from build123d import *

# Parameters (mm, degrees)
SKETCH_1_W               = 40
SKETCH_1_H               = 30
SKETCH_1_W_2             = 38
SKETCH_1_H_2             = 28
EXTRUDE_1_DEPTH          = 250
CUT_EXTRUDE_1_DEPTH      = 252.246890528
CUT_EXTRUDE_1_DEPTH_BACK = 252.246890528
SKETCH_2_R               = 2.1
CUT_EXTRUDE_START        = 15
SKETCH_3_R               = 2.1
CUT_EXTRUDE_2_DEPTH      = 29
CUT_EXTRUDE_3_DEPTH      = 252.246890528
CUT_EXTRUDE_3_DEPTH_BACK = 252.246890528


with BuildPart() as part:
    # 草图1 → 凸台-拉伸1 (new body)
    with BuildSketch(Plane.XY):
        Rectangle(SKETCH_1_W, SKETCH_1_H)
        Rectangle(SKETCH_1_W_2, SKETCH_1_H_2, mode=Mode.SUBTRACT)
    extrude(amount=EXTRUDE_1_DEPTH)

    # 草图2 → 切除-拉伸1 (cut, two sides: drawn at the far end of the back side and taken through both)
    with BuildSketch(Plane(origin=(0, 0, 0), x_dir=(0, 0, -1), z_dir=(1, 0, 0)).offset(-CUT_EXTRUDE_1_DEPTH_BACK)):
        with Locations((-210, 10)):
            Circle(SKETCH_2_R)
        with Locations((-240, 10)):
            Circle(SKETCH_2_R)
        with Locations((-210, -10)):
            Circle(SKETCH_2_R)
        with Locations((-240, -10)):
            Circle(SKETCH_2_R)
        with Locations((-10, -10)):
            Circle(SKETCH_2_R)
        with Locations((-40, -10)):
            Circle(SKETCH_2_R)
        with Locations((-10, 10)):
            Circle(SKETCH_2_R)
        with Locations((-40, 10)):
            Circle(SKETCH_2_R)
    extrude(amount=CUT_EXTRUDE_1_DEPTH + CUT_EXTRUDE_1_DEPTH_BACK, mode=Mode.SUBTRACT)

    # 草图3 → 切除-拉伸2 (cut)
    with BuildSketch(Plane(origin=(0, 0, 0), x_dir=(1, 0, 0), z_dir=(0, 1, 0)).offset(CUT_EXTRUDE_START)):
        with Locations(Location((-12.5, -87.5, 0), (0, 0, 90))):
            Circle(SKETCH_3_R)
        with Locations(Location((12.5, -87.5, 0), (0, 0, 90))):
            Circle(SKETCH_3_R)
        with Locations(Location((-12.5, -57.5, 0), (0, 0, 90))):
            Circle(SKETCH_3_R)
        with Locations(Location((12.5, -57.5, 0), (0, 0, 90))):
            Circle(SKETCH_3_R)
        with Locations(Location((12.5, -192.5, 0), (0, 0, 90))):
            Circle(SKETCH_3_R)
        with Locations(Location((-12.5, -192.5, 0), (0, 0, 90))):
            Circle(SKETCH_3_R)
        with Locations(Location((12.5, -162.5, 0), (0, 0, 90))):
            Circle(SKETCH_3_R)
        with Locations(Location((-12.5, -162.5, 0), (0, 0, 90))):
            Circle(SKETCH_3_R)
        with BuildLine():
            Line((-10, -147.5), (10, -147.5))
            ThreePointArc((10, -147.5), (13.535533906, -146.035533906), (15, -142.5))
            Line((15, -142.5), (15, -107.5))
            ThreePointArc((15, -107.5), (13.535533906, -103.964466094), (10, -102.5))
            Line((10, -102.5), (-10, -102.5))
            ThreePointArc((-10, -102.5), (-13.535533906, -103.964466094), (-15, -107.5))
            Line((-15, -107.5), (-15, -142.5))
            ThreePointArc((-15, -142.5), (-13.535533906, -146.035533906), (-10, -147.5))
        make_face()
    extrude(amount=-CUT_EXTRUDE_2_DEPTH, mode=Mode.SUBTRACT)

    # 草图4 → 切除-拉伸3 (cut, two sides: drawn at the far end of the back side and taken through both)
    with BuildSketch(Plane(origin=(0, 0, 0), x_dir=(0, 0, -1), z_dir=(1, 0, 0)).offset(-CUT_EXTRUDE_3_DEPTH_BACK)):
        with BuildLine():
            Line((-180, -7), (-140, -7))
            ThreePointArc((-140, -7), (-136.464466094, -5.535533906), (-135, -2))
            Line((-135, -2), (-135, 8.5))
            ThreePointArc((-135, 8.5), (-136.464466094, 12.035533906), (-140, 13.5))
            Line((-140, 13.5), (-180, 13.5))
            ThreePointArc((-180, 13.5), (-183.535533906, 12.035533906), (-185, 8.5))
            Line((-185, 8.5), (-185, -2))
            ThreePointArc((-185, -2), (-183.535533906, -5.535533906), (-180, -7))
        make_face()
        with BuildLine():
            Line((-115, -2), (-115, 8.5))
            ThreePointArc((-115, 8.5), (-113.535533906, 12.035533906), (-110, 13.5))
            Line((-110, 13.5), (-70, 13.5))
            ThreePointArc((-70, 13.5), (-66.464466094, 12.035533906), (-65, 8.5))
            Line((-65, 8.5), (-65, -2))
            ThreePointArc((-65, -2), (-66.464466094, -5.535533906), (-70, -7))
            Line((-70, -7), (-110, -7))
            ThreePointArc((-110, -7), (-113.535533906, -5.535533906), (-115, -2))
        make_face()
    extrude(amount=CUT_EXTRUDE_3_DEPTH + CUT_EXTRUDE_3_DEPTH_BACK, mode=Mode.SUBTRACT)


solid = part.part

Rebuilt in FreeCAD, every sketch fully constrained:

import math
import FreeCAD as App
import Part
import Sketcher
Q = App.Units.Quantity

doc = App.newDocument("Part")
body = doc.addObject("PartDesign::Body", "Body")

# Sketch on XY plane
sketch1 = body.newObject("Sketcher::SketchObject", "Sketch")
sketch1.AttachmentSupport = (doc.getObject("XY_Plane"), [""])
sketch1.MapMode = "FlatFace"
sketch1.addGeometry(Part.LineSegment(App.Vector(-20, 15, 0), App.Vector(-20, -15, 0)), False)
sketch1.addGeometry(Part.LineSegment(App.Vector(-20, -15, 0), App.Vector(20, -15, 0)), False)
sketch1.addGeometry(Part.LineSegment(App.Vector(20, -15, 0), App.Vector(20, 15, 0)), False)
sketch1.addGeometry(Part.LineSegment(App.Vector(20, 15, 0), App.Vector(-20, 15, 0)), False)
sketch1.addGeometry(Part.LineSegment(App.Vector(19, -14, 0), App.Vector(-19, -14, 0)), False)
sketch1.addGeometry(Part.LineSegment(App.Vector(-19, -14, 0), App.Vector(-19, 14, 0)), False)
sketch1.addGeometry(Part.LineSegment(App.Vector(-19, 14, 0), App.Vector(19, 14, 0)), False)
sketch1.addGeometry(Part.LineSegment(App.Vector(19, 14, 0), App.Vector(19, -14, 0)), False)
sketch1.addConstraint(Sketcher.Constraint("Coincident", 0, 2, 1, 1))
sketch1.addConstraint(Sketcher.Constraint("Coincident", 1, 2, 2, 1))
sketch1.addConstraint(Sketcher.Constraint("Coincident", 2, 2, 3, 1))
sketch1.addConstraint(Sketcher.Constraint("Coincident", 3, 2, 0, 1))
sketch1.addConstraint(Sketcher.Constraint("Coincident", 4, 2, 5, 1))
sketch1.addConstraint(Sketcher.Constraint("Coincident", 5, 2, 6, 1))
sketch1.addConstraint(Sketcher.Constraint("Coincident", 6, 2, 7, 1))
sketch1.addConstraint(Sketcher.Constraint("Coincident", 7, 2, 4, 1))
sketch1.addConstraint(Sketcher.Constraint("Vertical", 0))
sketch1.addConstraint(Sketcher.Constraint("Horizontal", 1))
sketch1.addConstraint(Sketcher.Constraint("Vertical", 2))
sketch1.addConstraint(Sketcher.Constraint("Horizontal", 3))
sketch1.addConstraint(Sketcher.Constraint("Horizontal", 4))
sketch1.addConstraint(Sketcher.Constraint("Vertical", 5))
sketch1.addConstraint(Sketcher.Constraint("Horizontal", 6))
sketch1.addConstraint(Sketcher.Constraint("Vertical", 7))
sketch1.addConstraint(Sketcher.Constraint("Symmetric", 0, 2, 2, 2, -1, 1))
sketch1.addConstraint(Sketcher.Constraint("Symmetric", 4, 2, 6, 2, -1, 1))
sketch1.addConstraint(Sketcher.Constraint("DistanceX", 1, 1, 1, 2, Q("40 mm")))
sketch1.addConstraint(Sketcher.Constraint("DistanceX", 4, 2, 4, 1, Q("38 mm")))
sketch1.addConstraint(Sketcher.Constraint("DistanceY", 0, 2, 0, 1, Q("30 mm")))
sketch1.addConstraint(Sketcher.Constraint("DistanceY", 5, 1, 5, 2, Q("28 mm")))
pad1 = body.newObject("PartDesign::Pad", "Pad")
pad1.Profile = sketch1
pad1.Length = 250

# Sketch on YZ plane
sketch2 = body.newObject("Sketcher::SketchObject", "Sketch001")
sketch2.AttachmentSupport = (doc.getObject("YZ_Plane"), [""])
sketch2.MapMode = "FlatFace"
sketch2.addGeometry(Part.Circle(App.Vector(10, 210, 0), App.Vector(0, 0, 1), 2.1), False)
sketch2.addGeometry(Part.Circle(App.Vector(10, 240, 0), App.Vector(0, 0, 1), 2.1), False)
sketch2.addGeometry(Part.Circle(App.Vector(-10, 210, 0), App.Vector(0, 0, 1), 2.1), False)
sketch2.addGeometry(Part.Circle(App.Vector(-10, 240, 0), App.Vector(0, 0, 1), 2.1), False)
sketch2.addGeometry(Part.Circle(App.Vector(-10, 10, 0), App.Vector(0, 0, 1), 2.1), False)
sketch2.addGeometry(Part.Circle(App.Vector(-10, 40, 0), App.Vector(0, 0, 1), 2.1), False)
sketch2.addGeometry(Part.Circle(App.Vector(10, 10, 0), App.Vector(0, 0, 1), 2.1), False)
sketch2.addGeometry(Part.Circle(App.Vector(10, 40, 0), App.Vector(0, 0, 1), 2.1), False)
sketch2.addConstraint(Sketcher.Constraint("Equal", 0, 1))
sketch2.addConstraint(Sketcher.Constraint("Equal", 1, 2))
sketch2.addConstraint(Sketcher.Constraint("Equal", 2, 3))
sketch2.addConstraint(Sketcher.Constraint("Equal", 3, 4))
sketch2.addConstraint(Sketcher.Constraint("Equal", 4, 5))
sketch2.addConstraint(Sketcher.Constraint("Equal", 5, 6))
sketch2.addConstraint(Sketcher.Constraint("Equal", 6, 7))
sketch2.addConstraint(Sketcher.Constraint("Symmetric", 0, 3, 2, 3, -2))
sketch2.addConstraint(Sketcher.Constraint("Symmetric", 1, 3, 3, 3, -2))
sketch2.addConstraint(Sketcher.Constraint("Symmetric", 4, 3, 6, 3, -2))
sketch2.addConstraint(Sketcher.Constraint("Symmetric", 5, 3, 7, 3, -2))
sketch2.addConstraint(Sketcher.Constraint("Vertical", 0, 3, 1, 3))
sketch2.addConstraint(Sketcher.Constraint("Vertical", 3, 3, 4, 3))
sketch2.addConstraint(Sketcher.Constraint("Vertical", 4, 3, 5, 3))
sketch2.addConstraint(Sketcher.Constraint("Diameter", 0, Q("4.2 mm")))
sketch2.addConstraint(Sketcher.Constraint("DistanceX", -1, 1, 0, 3, Q("10 mm")))
sketch2.addConstraint(Sketcher.Constraint("DistanceY", -1, 1, 0, 3, Q("210 mm")))
sketch2.addConstraint(Sketcher.Constraint("DistanceY", -1, 1, 1, 3, Q("240 mm")))
sketch2.addConstraint(Sketcher.Constraint("DistanceY", -1, 1, 4, 3, Q("10 mm")))
sketch2.addConstraint(Sketcher.Constraint("DistanceY", -1, 1, 5, 3, Q("40 mm")))
pocket1 = body.newObject("PartDesign::Pocket", "Pocket")
pocket1.Profile = sketch2
pocket1.Type = "ThroughAll"
pocket1.Midplane = True

# Sketch on XZ plane
sketch3 = body.newObject("Sketcher::SketchObject", "Sketch002")
sketch3.AttachmentSupport = (doc.getObject("XZ_Plane"), [""])
sketch3.MapMode = "FlatFace"
sketch3.AttachmentOffset = App.Placement(App.Vector(0, 0, -15), App.Rotation())
sketch3.addGeometry(Part.Circle(App.Vector(-12.5, 87.5, 0), App.Vector(0, 0, 1), 2.1), False)
sketch3.addGeometry(Part.Circle(App.Vector(12.5, 87.5, 0), App.Vector(0, 0, 1), 2.1), False)
sketch3.addGeometry(Part.Circle(App.Vector(-12.5, 57.5, 0), App.Vector(0, 0, 1), 2.1), False)
sketch3.addGeometry(Part.Circle(App.Vector(12.5, 57.5, 0), App.Vector(0, 0, 1), 2.1), False)
sketch3.addGeometry(Part.Circle(App.Vector(12.5, 192.5, 0), App.Vector(0, 0, 1), 2.1), False)
sketch3.addGeometry(Part.Circle(App.Vector(-12.5, 192.5, 0), App.Vector(0, 0, 1), 2.1), False)
sketch3.addGeometry(Part.Circle(App.Vector(12.5, 162.5, 0), App.Vector(0, 0, 1), 2.1), False)
sketch3.addGeometry(Part.Circle(App.Vector(-12.5, 162.5, 0), App.Vector(0, 0, 1), 2.1), False)
sketch3.addGeometry(Part.LineSegment(App.Vector(-10, 147.5, 0), App.Vector(10, 147.5, 0)), False)
sketch3.addGeometry(Part.ArcOfCircle(Part.Circle(App.Vector(10, 142.5, 0), App.Vector(0, 0, 1), 5), math.radians(0), math.radians(90)), False)
sketch3.addGeometry(Part.LineSegment(App.Vector(15, 142.5, 0), App.Vector(15, 107.5, 0)), False)
sketch3.addGeometry(Part.ArcOfCircle(Part.Circle(App.Vector(10, 107.5, 0), App.Vector(0, 0, 1), 5), math.radians(-90), math.radians(0)), False)
sketch3.addGeometry(Part.LineSegment(App.Vector(10, 102.5, 0), App.Vector(-10, 102.5, 0)), False)
sketch3.addGeometry(Part.ArcOfCircle(Part.Circle(App.Vector(-10, 107.5, 0), App.Vector(0, 0, 1), 5), math.radians(180), math.radians(270)), False)
sketch3.addGeometry(Part.LineSegment(App.Vector(-15, 107.5, 0), App.Vector(-15, 142.5, 0)), False)
sketch3.addGeometry(Part.ArcOfCircle(Part.Circle(App.Vector(-10, 142.5, 0), App.Vector(0, 0, 1), 5), math.radians(90), math.radians(180)), False)
sketch3.addConstraint(Sketcher.Constraint("Tangent", 8, 2, 9, 2))
sketch3.addConstraint(Sketcher.Constraint("Tangent", 9, 1, 10, 1))
sketch3.addConstraint(Sketcher.Constraint("Tangent", 10, 2, 11, 2))
sketch3.addConstraint(Sketcher.Constraint("Tangent", 11, 1, 12, 1))
sketch3.addConstraint(Sketcher.Constraint("Tangent", 12, 2, 13, 2))
sketch3.addConstraint(Sketcher.Constraint("Tangent", 13, 1, 14, 1))
sketch3.addConstraint(Sketcher.Constraint("Tangent", 14, 2, 15, 2))
sketch3.addConstraint(Sketcher.Constraint("Tangent", 15, 1, 8, 1))
sketch3.addConstraint(Sketcher.Constraint("Horizontal", 8))
sketch3.addConstraint(Sketcher.Constraint("Vertical", 10))
sketch3.addConstraint(Sketcher.Constraint("Horizontal", 12))
sketch3.addConstraint(Sketcher.Constraint("Vertical", 14))
sketch3.addConstraint(Sketcher.Constraint("Equal", 0, 1))
sketch3.addConstraint(Sketcher.Constraint("Equal", 1, 2))
sketch3.addConstraint(Sketcher.Constraint("Equal", 2, 3))
sketch3.addConstraint(Sketcher.Constraint("Equal", 3, 4))
sketch3.addConstraint(Sketcher.Constraint("Equal", 4, 5))
sketch3.addConstraint(Sketcher.Constraint("Equal", 5, 6))
sketch3.addConstraint(Sketcher.Constraint("Equal", 6, 7))
sketch3.addConstraint(Sketcher.Constraint("Equal", 9, 11))
sketch3.addConstraint(Sketcher.Constraint("Equal", 11, 13))
sketch3.addConstraint(Sketcher.Constraint("Equal", 13, 15))
sketch3.addConstraint(Sketcher.Constraint("Symmetric", 0, 3, 1, 3, -2))
sketch3.addConstraint(Sketcher.Constraint("Symmetric", 2, 3, 3, 3, -2))
sketch3.addConstraint(Sketcher.Constraint("Symmetric", 4, 3, 5, 3, -2))
sketch3.addConstraint(Sketcher.Constraint("Symmetric", 6, 3, 7, 3, -2))
sketch3.addConstraint(Sketcher.Constraint("Vertical", 0, 3, 2, 3))
sketch3.addConstraint(Sketcher.Constraint("Vertical", 3, 3, 4, 3))
sketch3.addConstraint(Sketcher.Constraint("Vertical", 4, 3, 6, 3))
sketch3.addConstraint(Sketcher.Constraint("Radius", 9, Q("5 mm")))
sketch3.addConstraint(Sketcher.Constraint("Diameter", 0, Q("4.2 mm")))
sketch3.addConstraint(Sketcher.Constraint("DistanceX", 8, 1, 8, 2, Q("20 mm")))
sketch3.addConstraint(Sketcher.Constraint("DistanceY", 10, 2, 10, 1, Q("35 mm")))
sketch3.addConstraint(Sketcher.Constraint("DistanceX", -1, 1, 9, 3, Q("10 mm")))
sketch3.addConstraint(Sketcher.Constraint("DistanceX", 0, 3, 1, 3, Q("25 mm")))
sketch3.addConstraint(Sketcher.Constraint("DistanceY", 2, 3, 0, 3, Q("30 mm")))
sketch3.addConstraint(Sketcher.Constraint("DistanceY", 1, 3, 4, 3, Q("105 mm")))
sketch3.addConstraint(Sketcher.Constraint("DistanceY", 6, 3, 4, 3, Q("30 mm")))
sketch3.addConstraint(Sketcher.Constraint("DistanceY", 9, 3, 6, 3, Q("20 mm")))
sketch3.addConstraint(Sketcher.Constraint("DistanceY", -1, 1, 0, 3, Q("87.5 mm")))
pocket2 = body.newObject("PartDesign::Pocket", "Pocket001")
pocket2.Profile = sketch3
pocket2.Length = 29
pocket2.Reversed = True

# Sketch on YZ plane
sketch4 = body.newObject("Sketcher::SketchObject", "Sketch003")
sketch4.AttachmentSupport = (doc.getObject("YZ_Plane"), [""])
sketch4.MapMode = "FlatFace"
sketch4.addGeometry(Part.LineSegment(App.Vector(-7, 180, 0), App.Vector(-7, 140, 0)), False)
sketch4.addGeometry(Part.ArcOfCircle(Part.Circle(App.Vector(-2, 140, 0), App.Vector(0, 0, 1), 5), math.radians(180), math.radians(270)), False)
sketch4.addGeometry(Part.LineSegment(App.Vector(-2, 135, 0), App.Vector(8, 135, 0)), False)
sketch4.addGeometry(Part.ArcOfCircle(Part.Circle(App.Vector(8, 140, 0), App.Vector(0, 0, 1), 5), math.radians(-90), math.radians(0)), False)
sketch4.addGeometry(Part.LineSegment(App.Vector(14, 140, 0), App.Vector(14, 180, 0)), False)
sketch4.addGeometry(Part.ArcOfCircle(Part.Circle(App.Vector(8, 180, 0), App.Vector(0, 0, 1), 5), math.radians(0), math.radians(90)), False)
sketch4.addGeometry(Part.LineSegment(App.Vector(8, 185, 0), App.Vector(-2, 185, 0)), False)
sketch4.addGeometry(Part.ArcOfCircle(Part.Circle(App.Vector(-2, 180, 0), App.Vector(0, 0, 1), 5), math.radians(90), math.radians(180)), False)
sketch4.addGeometry(Part.LineSegment(App.Vector(8, 115, 0), App.Vector(-2, 115, 0)), False)
sketch4.addGeometry(Part.ArcOfCircle(Part.Circle(App.Vector(-2, 110, 0), App.Vector(0, 0, 1), 5), math.radians(90), math.radians(180)), False)
sketch4.addGeometry(Part.LineSegment(App.Vector(-7, 110, 0), App.Vector(-7, 70, 0)), False)
sketch4.addGeometry(Part.ArcOfCircle(Part.Circle(App.Vector(-2, 70, 0), App.Vector(0, 0, 1), 5), math.radians(180), math.radians(270)), False)
sketch4.addGeometry(Part.LineSegment(App.Vector(-2, 65, 0), App.Vector(8, 65, 0)), False)
sketch4.addGeometry(Part.ArcOfCircle(Part.Circle(App.Vector(8, 70, 0), App.Vector(0, 0, 1), 5), math.radians(-90), math.radians(0)), False)
sketch4.addGeometry(Part.LineSegment(App.Vector(14, 70, 0), App.Vector(14, 110, 0)), False)
sketch4.addGeometry(Part.ArcOfCircle(Part.Circle(App.Vector(8, 110, 0), App.Vector(0, 0, 1), 5), math.radians(0), math.radians(90)), False)
sketch4.addConstraint(Sketcher.Constraint("Tangent", 0, 2, 1, 1))
sketch4.addConstraint(Sketcher.Constraint("Tangent", 1, 2, 2, 1))
sketch4.addConstraint(Sketcher.Constraint("Tangent", 2, 2, 3, 1))
sketch4.addConstraint(Sketcher.Constraint("Tangent", 3, 2, 4, 1))
sketch4.addConstraint(Sketcher.Constraint("Tangent", 4, 2, 5, 1))
sketch4.addConstraint(Sketcher.Constraint("Tangent", 5, 2, 6, 1))
sketch4.addConstraint(Sketcher.Constraint("Tangent", 6, 2, 7, 1))
sketch4.addConstraint(Sketcher.Constraint("Tangent", 7, 2, 0, 1))
sketch4.addConstraint(Sketcher.Constraint("Tangent", 8, 2, 9, 1))
sketch4.addConstraint(Sketcher.Constraint("Tangent", 9, 2, 10, 1))
sketch4.addConstraint(Sketcher.Constraint("Tangent", 10, 2, 11, 1))
sketch4.addConstraint(Sketcher.Constraint("Tangent", 11, 2, 12, 1))
sketch4.addConstraint(Sketcher.Constraint("Tangent", 12, 2, 13, 1))
sketch4.addConstraint(Sketcher.Constraint("Tangent", 13, 2, 14, 1))
sketch4.addConstraint(Sketcher.Constraint("Tangent", 14, 2, 15, 1))
sketch4.addConstraint(Sketcher.Constraint("Tangent", 15, 2, 8, 1))
sketch4.addConstraint(Sketcher.Constraint("Vertical", 0))
sketch4.addConstraint(Sketcher.Constraint("Horizontal", 2))
sketch4.addConstraint(Sketcher.Constraint("Vertical", 4))
sketch4.addConstraint(Sketcher.Constraint("Horizontal", 6))
sketch4.addConstraint(Sketcher.Constraint("Horizontal", 8))
sketch4.addConstraint(Sketcher.Constraint("Vertical", 10))
sketch4.addConstraint(Sketcher.Constraint("Horizontal", 12))
sketch4.addConstraint(Sketcher.Constraint("Vertical", 14))
sketch4.addConstraint(Sketcher.Constraint("Equal", 1, 3))
sketch4.addConstraint(Sketcher.Constraint("Equal", 3, 5))
sketch4.addConstraint(Sketcher.Constraint("Equal", 5, 7))
sketch4.addConstraint(Sketcher.Constraint("Equal", 7, 9))
sketch4.addConstraint(Sketcher.Constraint("Equal", 9, 11))
sketch4.addConstraint(Sketcher.Constraint("Equal", 11, 13))
sketch4.addConstraint(Sketcher.Constraint("Equal", 13, 15))
sketch4.addConstraint(Sketcher.Constraint("Vertical", 7, 3, 9, 3))
sketch4.addConstraint(Sketcher.Constraint("Vertical", 5, 3, 13, 3))
sketch4.addConstraint(Sketcher.Constraint("Equal", 4, 10))
sketch4.addConstraint(Sketcher.Constraint("Radius", 1, Q("5 mm")))
sketch4.addConstraint(Sketcher.Constraint("DistanceY", 0, 2, 0, 1, Q("40 mm")))
sketch4.addConstraint(Sketcher.Constraint("DistanceX", 2, 1, 2, 2, Q("10.5 mm")))
sketch4.addConstraint(Sketcher.Constraint("DistanceX", 1, 3, -1, 1, Q("2 mm")))
sketch4.addConstraint(Sketcher.Constraint("DistanceY", -1, 1, 1, 3, Q("140 mm")))
sketch4.addConstraint(Sketcher.Constraint("DistanceY", -1, 1, 9, 3, Q("110 mm")))
pocket3 = body.newObject("PartDesign::Pocket", "Pocket002")
pocket3.Profile = sketch4
pocket3.Type = "ThroughAll"
pocket3.Midplane = True

doc.recompute()
